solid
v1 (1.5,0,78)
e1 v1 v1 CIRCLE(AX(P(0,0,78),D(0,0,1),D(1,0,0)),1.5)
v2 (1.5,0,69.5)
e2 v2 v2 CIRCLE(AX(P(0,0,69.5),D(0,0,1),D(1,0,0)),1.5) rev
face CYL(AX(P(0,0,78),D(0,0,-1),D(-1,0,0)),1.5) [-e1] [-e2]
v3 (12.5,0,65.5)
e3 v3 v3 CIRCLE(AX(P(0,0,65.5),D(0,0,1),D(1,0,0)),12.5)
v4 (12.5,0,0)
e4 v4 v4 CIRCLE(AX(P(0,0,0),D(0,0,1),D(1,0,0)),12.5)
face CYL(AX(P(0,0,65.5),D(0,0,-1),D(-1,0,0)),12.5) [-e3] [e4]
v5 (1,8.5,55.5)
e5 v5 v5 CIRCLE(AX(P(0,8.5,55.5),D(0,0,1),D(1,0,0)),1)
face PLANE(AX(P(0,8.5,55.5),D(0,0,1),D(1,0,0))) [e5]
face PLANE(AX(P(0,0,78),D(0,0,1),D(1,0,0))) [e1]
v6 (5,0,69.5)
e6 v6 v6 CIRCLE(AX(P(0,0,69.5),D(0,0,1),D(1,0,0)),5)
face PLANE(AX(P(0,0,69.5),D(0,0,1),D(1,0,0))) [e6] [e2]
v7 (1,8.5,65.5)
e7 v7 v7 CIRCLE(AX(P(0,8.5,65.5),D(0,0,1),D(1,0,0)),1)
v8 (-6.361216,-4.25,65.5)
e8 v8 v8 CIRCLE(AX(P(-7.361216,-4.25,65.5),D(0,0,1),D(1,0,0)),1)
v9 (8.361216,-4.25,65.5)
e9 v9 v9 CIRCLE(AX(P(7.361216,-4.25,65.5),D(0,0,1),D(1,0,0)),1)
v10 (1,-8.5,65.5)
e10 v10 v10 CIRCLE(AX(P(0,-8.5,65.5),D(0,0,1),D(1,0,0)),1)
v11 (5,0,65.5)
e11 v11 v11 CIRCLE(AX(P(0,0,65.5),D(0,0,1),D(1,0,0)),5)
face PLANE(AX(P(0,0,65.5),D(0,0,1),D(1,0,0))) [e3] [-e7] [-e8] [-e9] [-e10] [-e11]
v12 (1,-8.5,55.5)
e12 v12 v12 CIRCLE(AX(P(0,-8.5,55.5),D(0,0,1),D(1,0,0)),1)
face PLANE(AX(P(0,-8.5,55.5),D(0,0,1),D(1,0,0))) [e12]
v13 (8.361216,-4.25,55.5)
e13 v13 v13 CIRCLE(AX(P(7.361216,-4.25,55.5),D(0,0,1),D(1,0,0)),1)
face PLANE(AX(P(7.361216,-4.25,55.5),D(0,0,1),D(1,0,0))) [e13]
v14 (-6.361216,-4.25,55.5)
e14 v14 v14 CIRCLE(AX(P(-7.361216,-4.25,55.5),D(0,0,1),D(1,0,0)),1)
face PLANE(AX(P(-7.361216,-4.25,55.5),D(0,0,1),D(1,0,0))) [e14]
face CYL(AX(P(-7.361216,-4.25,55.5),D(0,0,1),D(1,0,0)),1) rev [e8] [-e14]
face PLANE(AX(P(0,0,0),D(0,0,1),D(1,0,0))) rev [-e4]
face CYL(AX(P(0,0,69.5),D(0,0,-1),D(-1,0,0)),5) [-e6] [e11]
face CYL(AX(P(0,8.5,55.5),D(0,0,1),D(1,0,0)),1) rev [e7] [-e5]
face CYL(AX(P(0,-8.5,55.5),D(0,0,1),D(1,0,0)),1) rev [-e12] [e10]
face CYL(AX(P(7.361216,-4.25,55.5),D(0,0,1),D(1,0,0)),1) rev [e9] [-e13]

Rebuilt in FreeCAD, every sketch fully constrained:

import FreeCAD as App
import Part
import Sketcher
from FreeCAD import Vector
Q = App.Units.Quantity

doc = App.newDocument("Part")
body = doc.addObject("PartDesign::Body", "Body")

# Sketch on XY plane
sketch1 = doc.addObject("Sketcher::SketchObject", "Sketch")
body.addObject(sketch1)
sketch1.AttachmentSupport = (doc.XY_Plane, [""])
sketch1.MapMode = "FlatFace"
sketch1.addGeometry(Part.Circle(Vector(0, 0, 0), Vector(0, 0, 1), 12), False)
sketch1.addConstraint([
    Sketcher.Constraint("Coincident", 0, 3, -1, 1),
    Sketcher.Constraint("Diameter", 0, Q("25 mm")),
])
pad1 = doc.addObject("PartDesign::Pad", "Pad")
body.addObject(pad1)
pad1.Profile = sketch1
pad1.Length = 65.5

# Sketch on XY plane
sketch2 = doc.addObject("Sketcher::SketchObject", "Sketch001")
body.addObject(sketch2)
sketch2.AttachmentSupport = (doc.XY_Plane, [""])
sketch2.MapMode = "FlatFace"
sketch2.AttachmentOffset = App.Placement(Vector(0, 0, 65.5), App.Rotation())
sketch2.addGeometry(Part.Circle(Vector(0, 0, 0), Vector(0, 0, 1), 5), False)
sketch2.addConstraint([
    Sketcher.Constraint("Coincident", 0, 3, -1, 1),
    Sketcher.Constraint("Diameter", 0, Q("10 mm")),
])
pad2 = doc.addObject("PartDesign::Pad", "Pad001")
body.addObject(pad2)
pad2.Profile = sketch2
pad2.Length = 4

# Sketch on XY plane
sketch3 = doc.addObject("Sketcher::SketchObject", "Sketch002")
body.addObject(sketch3)
sketch3.AttachmentSupport = (doc.XY_Plane, [""])
sketch3.MapMode = "FlatFace"
sketch3.AttachmentOffset = App.Placement(Vector(0, 0, 65.5), App.Rotation())
sketch3.addGeometry(Part.Circle(Vector(0, 0, 0), Vector(0, 0, 1), 1.5), False)
sketch3.addConstraint([
    Sketcher.Constraint("Coincident", 0, 3, -1, 1),
    Sketcher.Constraint("Diameter", 0, Q("3 mm")),
])
pad3 = doc.addObject("PartDesign::Pad", "Pad002")
body.addObject(pad3)
pad3.Profile = sketch3
pad3.Length = 12.5

# Sketch on XY plane
sketch4 = doc.addObject("Sketcher::SketchObject", "Sketch003")
body.addObject(sketch4)
sketch4.AttachmentSupport = (doc.XY_Plane, [""])
sketch4.MapMode = "FlatFace"
sketch4.AttachmentOffset = App.Placement(Vector(0, 0, 65.5), App.Rotation())
sketch4.addGeometry([
    Part.Circle(Vector(0, 8.5, 0), Vector(0, 0, 1), 1),
    Part.Circle(Vector(0, -8.5, 0), Vector(0, 0, 1), 1),
    Part.Circle(Vector(-7.4, -4.2, 0), Vector(0, 0, 1), 1),
    Part.Circle(Vector(7.4, -4.2, 0), Vector(0, 0, 1), 1),
], False)
sketch4.addConstraint([
    Sketcher.Constraint("Equal", 0, 1),
    Sketcher.Constraint("Equal", 1, 2),
    Sketcher.Constraint("Equal", 2, 3),
    Sketcher.Constraint("Symmetric", 0, 3, 1, 3, -1, 1),
    Sketcher.Constraint("Symmetric", 2, 3, 3, 3, -2),
    Sketcher.Constraint("PointOnObject", 0, 3, -2),
    Sketcher.Constraint("Diameter", 0, Q("2 mm")),
    Sketcher.Constraint("DistanceY", 1, 3, 0, 3, Q("17 mm")),
    Sketcher.Constraint("DistanceY", 2, 3, -1, 1, Q("4.25 mm")),
    Sketcher.Constraint("DistanceX", 2, 3, 3, 3, Q("14.722432 mm")),
])
pocket1 = doc.addObject("PartDesign::Pocket", "Pocket")
body.addObject(pocket1)
pocket1.Profile = sketch4
pocket1.Length = 10

doc.recompute()
